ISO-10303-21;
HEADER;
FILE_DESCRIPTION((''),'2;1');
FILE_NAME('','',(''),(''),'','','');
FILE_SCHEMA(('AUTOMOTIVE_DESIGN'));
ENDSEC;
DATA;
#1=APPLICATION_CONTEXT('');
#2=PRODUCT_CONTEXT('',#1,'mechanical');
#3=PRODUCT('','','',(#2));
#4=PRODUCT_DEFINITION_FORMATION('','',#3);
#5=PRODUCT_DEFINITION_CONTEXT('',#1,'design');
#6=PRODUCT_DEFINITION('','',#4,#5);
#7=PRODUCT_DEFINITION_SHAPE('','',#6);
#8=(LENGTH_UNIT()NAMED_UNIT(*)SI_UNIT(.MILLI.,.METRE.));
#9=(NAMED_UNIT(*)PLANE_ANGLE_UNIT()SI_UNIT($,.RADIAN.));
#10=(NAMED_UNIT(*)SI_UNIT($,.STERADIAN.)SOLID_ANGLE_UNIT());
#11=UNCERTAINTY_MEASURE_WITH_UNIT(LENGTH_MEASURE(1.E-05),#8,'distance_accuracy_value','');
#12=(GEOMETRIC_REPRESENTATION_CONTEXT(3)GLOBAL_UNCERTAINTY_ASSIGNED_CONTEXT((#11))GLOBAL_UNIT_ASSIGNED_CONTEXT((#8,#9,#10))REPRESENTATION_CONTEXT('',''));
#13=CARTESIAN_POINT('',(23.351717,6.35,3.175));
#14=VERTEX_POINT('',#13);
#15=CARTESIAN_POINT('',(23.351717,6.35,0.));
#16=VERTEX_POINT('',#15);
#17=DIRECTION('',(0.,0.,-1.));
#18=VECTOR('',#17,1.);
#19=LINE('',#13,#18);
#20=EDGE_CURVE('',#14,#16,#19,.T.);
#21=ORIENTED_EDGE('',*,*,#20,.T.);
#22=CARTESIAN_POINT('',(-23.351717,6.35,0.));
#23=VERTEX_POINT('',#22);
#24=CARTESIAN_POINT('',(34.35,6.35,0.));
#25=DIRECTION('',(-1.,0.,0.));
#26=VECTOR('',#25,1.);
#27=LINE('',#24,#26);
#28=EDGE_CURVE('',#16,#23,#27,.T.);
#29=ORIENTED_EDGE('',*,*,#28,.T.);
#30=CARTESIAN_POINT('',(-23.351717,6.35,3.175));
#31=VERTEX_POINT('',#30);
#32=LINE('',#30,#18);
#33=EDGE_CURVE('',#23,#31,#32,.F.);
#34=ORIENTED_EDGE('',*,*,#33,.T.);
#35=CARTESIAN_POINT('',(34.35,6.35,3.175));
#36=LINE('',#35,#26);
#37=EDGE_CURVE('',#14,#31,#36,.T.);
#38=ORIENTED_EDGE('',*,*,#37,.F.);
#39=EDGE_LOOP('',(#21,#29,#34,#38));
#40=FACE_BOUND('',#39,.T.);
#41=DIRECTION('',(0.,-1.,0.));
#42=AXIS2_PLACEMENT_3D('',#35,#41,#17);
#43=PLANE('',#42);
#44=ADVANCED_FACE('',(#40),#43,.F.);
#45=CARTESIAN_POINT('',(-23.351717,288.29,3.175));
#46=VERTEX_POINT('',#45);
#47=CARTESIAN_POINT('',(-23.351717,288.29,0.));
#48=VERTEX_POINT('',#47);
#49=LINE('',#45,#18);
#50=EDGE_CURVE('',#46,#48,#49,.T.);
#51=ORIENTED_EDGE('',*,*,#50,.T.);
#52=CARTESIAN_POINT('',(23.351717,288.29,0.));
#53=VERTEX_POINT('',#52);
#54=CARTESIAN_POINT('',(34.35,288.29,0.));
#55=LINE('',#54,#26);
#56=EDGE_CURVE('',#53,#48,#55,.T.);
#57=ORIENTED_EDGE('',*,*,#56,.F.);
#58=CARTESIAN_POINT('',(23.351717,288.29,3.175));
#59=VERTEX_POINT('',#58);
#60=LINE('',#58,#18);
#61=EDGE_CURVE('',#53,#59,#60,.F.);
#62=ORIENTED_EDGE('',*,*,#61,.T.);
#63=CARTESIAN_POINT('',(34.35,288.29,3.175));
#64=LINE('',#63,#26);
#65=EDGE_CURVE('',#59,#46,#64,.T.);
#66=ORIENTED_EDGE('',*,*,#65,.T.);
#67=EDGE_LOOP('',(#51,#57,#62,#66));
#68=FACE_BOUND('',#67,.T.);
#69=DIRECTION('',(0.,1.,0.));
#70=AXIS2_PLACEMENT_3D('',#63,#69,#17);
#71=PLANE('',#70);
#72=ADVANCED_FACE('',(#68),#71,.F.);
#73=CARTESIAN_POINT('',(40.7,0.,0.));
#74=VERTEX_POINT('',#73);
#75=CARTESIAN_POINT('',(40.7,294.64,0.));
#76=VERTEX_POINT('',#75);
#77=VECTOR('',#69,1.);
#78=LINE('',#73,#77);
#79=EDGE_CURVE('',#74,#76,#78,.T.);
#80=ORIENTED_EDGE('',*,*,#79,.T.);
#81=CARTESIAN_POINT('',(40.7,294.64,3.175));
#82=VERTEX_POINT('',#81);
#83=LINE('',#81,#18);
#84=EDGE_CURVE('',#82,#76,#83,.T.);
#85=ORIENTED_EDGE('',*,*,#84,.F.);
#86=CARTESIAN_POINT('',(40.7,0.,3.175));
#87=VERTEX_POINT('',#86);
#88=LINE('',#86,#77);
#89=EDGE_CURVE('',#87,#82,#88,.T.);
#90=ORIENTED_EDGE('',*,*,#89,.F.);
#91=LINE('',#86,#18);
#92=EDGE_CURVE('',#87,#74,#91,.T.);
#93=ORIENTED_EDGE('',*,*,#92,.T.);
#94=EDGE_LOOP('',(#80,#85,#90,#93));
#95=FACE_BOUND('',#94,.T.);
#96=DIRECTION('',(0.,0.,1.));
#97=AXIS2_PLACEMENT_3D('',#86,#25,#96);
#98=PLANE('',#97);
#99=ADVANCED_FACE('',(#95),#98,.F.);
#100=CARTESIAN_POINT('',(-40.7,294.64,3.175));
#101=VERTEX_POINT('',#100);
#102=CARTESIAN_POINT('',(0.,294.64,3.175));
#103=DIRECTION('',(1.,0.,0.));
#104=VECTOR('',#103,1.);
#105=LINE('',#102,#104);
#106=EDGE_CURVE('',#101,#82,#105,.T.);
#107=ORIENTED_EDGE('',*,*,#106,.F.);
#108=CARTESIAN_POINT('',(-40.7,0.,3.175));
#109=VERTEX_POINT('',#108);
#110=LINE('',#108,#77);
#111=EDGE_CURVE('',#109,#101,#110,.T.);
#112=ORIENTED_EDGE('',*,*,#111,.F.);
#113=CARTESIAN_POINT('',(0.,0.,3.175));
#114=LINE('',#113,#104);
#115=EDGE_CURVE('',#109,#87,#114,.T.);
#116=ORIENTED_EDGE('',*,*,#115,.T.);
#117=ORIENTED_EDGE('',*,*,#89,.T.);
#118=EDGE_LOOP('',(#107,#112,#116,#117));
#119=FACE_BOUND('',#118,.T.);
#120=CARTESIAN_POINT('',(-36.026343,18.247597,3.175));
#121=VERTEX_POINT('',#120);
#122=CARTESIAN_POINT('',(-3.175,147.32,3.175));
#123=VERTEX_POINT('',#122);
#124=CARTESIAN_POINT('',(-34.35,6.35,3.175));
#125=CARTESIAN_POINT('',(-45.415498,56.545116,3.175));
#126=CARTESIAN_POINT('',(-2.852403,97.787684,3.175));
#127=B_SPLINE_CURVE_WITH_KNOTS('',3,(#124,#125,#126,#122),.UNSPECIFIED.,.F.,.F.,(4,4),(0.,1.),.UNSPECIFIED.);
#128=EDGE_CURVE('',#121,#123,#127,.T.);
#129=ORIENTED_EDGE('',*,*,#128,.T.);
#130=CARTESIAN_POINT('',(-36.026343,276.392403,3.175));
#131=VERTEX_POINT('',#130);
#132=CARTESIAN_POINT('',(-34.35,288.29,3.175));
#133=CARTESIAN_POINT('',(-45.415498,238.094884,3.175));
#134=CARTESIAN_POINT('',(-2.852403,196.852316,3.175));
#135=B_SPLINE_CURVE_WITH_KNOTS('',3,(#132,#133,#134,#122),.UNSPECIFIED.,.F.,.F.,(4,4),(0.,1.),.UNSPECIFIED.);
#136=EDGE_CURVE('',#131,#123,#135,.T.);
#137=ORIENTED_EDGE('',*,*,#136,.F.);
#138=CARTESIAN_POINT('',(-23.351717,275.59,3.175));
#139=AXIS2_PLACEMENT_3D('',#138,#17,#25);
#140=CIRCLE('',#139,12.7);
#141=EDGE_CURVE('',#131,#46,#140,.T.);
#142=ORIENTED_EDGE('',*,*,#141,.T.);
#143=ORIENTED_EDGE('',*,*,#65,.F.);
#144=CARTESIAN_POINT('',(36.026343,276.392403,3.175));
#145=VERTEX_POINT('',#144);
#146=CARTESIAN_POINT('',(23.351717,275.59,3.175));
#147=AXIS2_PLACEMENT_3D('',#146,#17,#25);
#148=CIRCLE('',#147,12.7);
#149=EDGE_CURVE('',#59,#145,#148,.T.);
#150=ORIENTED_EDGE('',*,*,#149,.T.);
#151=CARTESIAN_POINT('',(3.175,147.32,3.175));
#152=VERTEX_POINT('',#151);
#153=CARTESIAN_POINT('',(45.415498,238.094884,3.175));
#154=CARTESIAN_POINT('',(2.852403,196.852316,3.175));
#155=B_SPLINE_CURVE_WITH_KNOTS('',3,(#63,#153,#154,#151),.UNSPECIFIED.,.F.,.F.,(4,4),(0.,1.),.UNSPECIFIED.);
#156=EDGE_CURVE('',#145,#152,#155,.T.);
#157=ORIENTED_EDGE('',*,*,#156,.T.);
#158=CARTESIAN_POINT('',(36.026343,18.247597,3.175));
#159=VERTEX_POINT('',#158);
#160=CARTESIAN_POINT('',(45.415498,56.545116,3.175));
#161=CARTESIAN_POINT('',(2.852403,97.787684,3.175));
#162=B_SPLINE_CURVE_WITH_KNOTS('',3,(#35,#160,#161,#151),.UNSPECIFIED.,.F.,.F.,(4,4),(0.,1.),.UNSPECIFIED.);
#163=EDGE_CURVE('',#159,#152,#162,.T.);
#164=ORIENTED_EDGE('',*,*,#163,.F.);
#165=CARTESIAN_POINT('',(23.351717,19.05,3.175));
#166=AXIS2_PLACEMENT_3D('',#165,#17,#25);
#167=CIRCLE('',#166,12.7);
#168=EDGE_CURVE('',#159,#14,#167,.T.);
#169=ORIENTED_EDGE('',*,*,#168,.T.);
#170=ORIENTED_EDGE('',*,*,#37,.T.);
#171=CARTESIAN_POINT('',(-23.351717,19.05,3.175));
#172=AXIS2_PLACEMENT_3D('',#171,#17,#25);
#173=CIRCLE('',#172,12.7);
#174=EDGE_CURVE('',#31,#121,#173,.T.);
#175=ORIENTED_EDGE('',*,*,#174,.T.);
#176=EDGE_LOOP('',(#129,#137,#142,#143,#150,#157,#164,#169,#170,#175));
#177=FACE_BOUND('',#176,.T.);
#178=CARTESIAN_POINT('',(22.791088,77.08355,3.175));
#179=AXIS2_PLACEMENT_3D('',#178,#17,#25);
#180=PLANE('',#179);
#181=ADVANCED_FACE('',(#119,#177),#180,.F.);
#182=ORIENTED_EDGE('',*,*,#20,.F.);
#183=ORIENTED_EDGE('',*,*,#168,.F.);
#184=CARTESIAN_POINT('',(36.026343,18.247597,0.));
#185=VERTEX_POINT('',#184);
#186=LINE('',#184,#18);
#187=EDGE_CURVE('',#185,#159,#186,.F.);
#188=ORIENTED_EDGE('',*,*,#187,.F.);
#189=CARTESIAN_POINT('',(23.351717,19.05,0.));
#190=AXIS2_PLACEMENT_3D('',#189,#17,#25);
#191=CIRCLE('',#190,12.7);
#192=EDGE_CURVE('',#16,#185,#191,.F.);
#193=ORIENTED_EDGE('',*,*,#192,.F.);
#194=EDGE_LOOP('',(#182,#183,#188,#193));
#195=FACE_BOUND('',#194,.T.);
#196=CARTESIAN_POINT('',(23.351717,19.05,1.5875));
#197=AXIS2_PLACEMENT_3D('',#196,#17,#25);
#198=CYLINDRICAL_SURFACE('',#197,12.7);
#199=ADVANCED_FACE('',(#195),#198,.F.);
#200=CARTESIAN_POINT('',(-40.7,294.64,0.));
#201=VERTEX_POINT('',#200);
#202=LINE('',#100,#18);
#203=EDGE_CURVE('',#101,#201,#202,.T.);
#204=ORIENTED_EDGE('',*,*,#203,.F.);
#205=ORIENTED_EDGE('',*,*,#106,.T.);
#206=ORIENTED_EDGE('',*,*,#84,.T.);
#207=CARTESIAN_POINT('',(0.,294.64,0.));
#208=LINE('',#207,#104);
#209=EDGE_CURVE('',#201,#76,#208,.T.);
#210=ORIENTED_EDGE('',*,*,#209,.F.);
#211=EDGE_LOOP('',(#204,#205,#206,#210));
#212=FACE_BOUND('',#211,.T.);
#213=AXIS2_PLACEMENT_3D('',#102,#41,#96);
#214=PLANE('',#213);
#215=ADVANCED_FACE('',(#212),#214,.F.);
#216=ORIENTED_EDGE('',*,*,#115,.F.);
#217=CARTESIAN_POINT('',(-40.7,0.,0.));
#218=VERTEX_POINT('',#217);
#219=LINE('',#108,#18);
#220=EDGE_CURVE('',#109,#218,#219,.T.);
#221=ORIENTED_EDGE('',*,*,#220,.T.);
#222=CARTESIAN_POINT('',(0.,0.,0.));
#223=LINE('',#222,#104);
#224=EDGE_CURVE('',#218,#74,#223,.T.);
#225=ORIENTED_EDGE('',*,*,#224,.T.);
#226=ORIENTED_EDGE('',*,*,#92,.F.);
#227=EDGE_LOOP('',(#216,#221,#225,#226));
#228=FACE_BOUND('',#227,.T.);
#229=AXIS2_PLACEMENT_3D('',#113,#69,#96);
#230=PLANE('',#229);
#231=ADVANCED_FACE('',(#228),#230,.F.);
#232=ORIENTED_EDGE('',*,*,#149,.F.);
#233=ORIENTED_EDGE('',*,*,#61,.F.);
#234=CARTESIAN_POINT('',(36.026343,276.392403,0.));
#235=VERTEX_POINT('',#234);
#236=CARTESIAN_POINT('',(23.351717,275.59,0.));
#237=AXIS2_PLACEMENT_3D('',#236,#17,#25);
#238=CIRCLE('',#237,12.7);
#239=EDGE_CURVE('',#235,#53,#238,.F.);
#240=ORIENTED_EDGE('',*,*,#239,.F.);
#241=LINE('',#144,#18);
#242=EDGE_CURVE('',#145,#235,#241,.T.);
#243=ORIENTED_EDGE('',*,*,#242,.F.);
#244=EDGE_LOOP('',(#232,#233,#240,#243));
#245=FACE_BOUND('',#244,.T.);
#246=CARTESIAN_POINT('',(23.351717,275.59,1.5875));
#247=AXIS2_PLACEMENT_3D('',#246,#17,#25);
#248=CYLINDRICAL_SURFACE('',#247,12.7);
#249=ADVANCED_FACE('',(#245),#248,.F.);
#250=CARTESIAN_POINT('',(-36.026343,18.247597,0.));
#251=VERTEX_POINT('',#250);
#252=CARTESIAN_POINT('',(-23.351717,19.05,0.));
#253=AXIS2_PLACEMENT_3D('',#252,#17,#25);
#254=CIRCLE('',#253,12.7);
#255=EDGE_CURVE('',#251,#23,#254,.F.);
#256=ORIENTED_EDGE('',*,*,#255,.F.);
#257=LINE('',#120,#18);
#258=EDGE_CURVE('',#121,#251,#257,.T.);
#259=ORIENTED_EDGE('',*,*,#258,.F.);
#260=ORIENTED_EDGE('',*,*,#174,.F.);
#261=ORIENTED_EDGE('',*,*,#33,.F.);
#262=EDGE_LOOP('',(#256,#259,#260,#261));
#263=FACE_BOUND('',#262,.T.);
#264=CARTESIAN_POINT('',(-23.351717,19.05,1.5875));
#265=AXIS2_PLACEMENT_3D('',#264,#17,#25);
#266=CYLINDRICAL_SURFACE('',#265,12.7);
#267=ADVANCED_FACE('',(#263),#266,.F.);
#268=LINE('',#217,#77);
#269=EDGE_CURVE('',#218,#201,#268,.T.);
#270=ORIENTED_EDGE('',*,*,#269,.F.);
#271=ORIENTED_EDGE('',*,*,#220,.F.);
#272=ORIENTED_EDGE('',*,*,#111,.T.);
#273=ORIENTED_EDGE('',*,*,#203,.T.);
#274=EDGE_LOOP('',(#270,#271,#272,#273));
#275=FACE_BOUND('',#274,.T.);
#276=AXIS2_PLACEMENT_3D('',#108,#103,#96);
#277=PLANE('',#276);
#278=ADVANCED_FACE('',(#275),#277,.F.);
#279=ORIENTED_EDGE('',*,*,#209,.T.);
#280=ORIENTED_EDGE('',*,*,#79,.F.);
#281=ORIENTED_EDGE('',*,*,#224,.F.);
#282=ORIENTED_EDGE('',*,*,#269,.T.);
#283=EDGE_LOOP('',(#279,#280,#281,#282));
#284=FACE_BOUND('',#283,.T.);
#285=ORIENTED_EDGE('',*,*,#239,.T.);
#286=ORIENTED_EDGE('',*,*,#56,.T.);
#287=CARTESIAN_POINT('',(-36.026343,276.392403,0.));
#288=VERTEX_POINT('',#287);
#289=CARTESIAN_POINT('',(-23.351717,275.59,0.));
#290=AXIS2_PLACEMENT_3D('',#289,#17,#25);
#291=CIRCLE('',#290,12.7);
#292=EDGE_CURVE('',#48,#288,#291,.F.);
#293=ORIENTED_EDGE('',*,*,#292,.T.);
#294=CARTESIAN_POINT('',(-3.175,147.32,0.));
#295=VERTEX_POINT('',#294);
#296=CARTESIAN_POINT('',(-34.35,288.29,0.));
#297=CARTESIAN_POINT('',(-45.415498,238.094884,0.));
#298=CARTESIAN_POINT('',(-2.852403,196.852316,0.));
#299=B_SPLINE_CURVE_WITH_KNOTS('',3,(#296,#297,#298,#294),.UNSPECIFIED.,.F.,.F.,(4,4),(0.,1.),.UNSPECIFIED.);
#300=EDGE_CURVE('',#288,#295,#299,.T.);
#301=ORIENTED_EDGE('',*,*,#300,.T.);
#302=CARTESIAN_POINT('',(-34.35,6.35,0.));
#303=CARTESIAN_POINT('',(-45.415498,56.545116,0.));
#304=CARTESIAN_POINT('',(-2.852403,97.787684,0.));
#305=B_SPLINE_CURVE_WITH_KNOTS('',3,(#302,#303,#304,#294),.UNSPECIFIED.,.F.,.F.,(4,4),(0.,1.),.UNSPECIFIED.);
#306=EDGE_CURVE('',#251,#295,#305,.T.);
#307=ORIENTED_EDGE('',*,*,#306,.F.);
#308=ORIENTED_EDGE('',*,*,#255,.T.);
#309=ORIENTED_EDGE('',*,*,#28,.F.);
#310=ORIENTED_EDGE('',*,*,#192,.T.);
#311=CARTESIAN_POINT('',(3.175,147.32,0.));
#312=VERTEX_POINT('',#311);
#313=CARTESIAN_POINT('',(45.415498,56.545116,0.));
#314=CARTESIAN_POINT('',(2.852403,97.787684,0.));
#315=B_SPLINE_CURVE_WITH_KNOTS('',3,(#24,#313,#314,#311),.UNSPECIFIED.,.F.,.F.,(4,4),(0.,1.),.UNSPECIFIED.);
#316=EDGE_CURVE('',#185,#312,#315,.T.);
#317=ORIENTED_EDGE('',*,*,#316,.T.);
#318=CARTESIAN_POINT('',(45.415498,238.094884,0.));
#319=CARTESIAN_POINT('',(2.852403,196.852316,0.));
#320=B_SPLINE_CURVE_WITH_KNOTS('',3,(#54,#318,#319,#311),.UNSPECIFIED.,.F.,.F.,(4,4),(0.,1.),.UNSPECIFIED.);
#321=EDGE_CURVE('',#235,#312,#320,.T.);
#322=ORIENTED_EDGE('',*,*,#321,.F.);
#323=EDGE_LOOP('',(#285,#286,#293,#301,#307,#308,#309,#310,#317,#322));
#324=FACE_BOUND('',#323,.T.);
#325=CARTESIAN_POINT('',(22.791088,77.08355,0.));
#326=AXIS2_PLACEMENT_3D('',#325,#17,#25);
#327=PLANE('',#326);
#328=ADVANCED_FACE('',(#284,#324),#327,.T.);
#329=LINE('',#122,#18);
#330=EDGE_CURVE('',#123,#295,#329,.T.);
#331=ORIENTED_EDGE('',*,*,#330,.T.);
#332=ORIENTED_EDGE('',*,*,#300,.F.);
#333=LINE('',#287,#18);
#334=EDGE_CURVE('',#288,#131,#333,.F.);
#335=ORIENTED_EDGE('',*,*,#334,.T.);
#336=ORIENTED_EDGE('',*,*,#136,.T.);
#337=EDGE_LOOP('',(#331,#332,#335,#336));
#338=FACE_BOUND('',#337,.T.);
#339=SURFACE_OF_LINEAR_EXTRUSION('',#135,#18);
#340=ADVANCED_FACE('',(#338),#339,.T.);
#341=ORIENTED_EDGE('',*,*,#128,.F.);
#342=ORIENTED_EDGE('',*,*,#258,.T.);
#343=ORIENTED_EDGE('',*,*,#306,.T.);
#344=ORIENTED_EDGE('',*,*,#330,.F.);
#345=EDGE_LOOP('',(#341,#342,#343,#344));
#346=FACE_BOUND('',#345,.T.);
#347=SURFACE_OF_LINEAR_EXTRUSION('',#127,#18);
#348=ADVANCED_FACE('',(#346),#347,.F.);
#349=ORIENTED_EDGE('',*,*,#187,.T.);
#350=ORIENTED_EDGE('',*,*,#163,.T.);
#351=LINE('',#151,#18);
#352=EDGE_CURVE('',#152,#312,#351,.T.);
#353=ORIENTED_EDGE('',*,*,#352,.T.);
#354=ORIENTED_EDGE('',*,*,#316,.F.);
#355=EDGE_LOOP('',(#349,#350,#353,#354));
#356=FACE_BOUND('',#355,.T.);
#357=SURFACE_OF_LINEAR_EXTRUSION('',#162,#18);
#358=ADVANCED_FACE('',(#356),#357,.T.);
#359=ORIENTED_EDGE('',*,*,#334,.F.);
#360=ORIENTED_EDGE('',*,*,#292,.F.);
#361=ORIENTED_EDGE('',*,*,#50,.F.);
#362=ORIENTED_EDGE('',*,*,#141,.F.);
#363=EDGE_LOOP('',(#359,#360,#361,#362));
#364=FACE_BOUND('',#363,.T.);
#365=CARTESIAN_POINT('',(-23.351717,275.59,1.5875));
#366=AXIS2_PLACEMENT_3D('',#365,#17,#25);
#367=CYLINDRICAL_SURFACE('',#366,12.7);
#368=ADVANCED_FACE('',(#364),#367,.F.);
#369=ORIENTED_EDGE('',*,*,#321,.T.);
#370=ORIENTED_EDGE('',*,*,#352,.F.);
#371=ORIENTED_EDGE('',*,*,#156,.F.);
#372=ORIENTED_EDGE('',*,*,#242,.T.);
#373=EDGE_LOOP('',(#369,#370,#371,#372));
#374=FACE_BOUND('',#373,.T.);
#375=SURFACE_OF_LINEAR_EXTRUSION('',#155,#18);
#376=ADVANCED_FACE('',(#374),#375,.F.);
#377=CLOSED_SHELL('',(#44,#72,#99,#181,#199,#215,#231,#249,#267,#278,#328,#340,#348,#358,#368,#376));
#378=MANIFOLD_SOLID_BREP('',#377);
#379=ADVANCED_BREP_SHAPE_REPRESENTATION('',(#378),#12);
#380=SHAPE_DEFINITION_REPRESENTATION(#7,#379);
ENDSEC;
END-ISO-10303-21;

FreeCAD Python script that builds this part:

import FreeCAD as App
import Part
import Sketcher
from FreeCAD import Vector
Q = App.Units.Quantity


def edges_at(feature, points):
    """Names of the edges that pass closest to the given points."""
    edges = feature.Shape.Edges
    near = lambda p: min(range(len(edges)), key=lambda i: edges[i].distToShape(Part.Vertex(*p))[0])
    return sorted({f"Edge{near(p) + 1}" for p in points})

doc = App.newDocument("Part")
body = doc.addObject("PartDesign::Body", "Body")

# Sketch on XY plane
sketch1 = body.newObject("Sketcher::SketchObject", "Sketch")
sketch1.AttachmentSupport = (doc.getObject("XY_Plane"), [""])
sketch1.MapMode = "FlatFace"
sketch1.addGeometry([
    Part.LineSegment(Vector(34.35, 6.35, 0), Vector(0, 6.35, 0)),  # 0
    Part.LineSegment(Vector(0, 6.35, 0), Vector(0, 0, 0)),  # 1
    Part.LineSegment(Vector(0, 0, 0), Vector(40.7, 0, 0)),  # 2
    Part.LineSegment(Vector(40.7, 0, 0), Vector(40.7, 147.32, 0)),  # 3
    Part.LineSegment(Vector(40.7, 147.32, 0), Vector(3.175, 147.32, 0)),  # 4
    Part.BSplineCurve([Vector(34.35, 6.35, 0), Vector(45.415498, 56.545116, 0), Vector(2.852403, 97.787684, 0), Vector(3.175, 147.32, 0)], [4, 4], [0, 1], False, 3, [1, 1, 1, 1], False),  # 5
], False)
sketch1.addConstraint([
    Sketcher.Constraint("Block", 5),
    Sketcher.Constraint("Coincident", 0, 2, 1, 1),
    Sketcher.Constraint("Coincident", 1, 2, 2, 1),
    Sketcher.Constraint("Coincident", 2, 2, 3, 1),
    Sketcher.Constraint("Coincident", 3, 2, 4, 1),
    Sketcher.Constraint("Coincident", 4, 2, 5, 2),
    Sketcher.Constraint("Coincident", 5, 1, 0, 1),
    Sketcher.Constraint("Horizontal", 0),
    Sketcher.Constraint("Vertical", 1),
    Sketcher.Constraint("Horizontal", 2),
    Sketcher.Constraint("Vertical", 3),
    Sketcher.Constraint("Horizontal", 4),
    Sketcher.Constraint("Coincident", 1, 2, -1, 1),
    Sketcher.Constraint("DistanceX", 2, 1, 2, 2, 40.7),
])
pad1 = body.newObject("PartDesign::Pad", "Pad")
pad1.Profile = sketch1
pad1.Length = Q("0.125 in")
body2 = doc.addObject("PartDesign::Body", "Body001")
doc.recompute()

body2.BaseFeature = body
doc.recompute()

mirroring = doc.addObject("Part::Mirroring", "Mirroring")
mirroring.Source = body
mirroring.Base = Vector(0, 0, 3.175)
mirroring.Normal = Vector(-1, 0, 0)
body3 = doc.addObject("PartDesign::Body", "Body002")
body3.BaseFeature = mirroring
boolean = body2.newObject("PartDesign::Boolean", "Boolean")
boolean.Type = "Fuse"
boolean.addObjects([body3])
doc.recompute()
body4 = doc.addObject("PartDesign::Body", "Body003")
doc.recompute()

body4.BaseFeature = body2
doc.recompute()

mirroring2 = doc.addObject("Part::Mirroring", "Mirroring001")
mirroring2.Source = body2
mirroring2.Base = Vector(-3.175, 147.32, 3.175)
mirroring2.Normal = Vector(0, 1, 0)
body5 = doc.addObject("PartDesign::Body", "Body004")
body5.BaseFeature = mirroring2
boolean2 = body4.newObject("PartDesign::Boolean", "Boolean001")
boolean2.Type = "Fuse"
boolean2.addObjects([body5])
doc.recompute()

fillet = body4.newObject("PartDesign::Fillet", "Fillet")
fillet.Base = (boolean2, edges_at(boolean2, [
    (34.35, 6.35, 1.587),
    (-34.35, 6.35, 1.587),
    (34.35, 288.29, 1.587),
    (-34.35, 288.29, 1.587),
]))
fillet.Radius = Q("0.5 in")
mirroring.Visibility = False
mirroring2.Visibility = False

doc.recompute()
